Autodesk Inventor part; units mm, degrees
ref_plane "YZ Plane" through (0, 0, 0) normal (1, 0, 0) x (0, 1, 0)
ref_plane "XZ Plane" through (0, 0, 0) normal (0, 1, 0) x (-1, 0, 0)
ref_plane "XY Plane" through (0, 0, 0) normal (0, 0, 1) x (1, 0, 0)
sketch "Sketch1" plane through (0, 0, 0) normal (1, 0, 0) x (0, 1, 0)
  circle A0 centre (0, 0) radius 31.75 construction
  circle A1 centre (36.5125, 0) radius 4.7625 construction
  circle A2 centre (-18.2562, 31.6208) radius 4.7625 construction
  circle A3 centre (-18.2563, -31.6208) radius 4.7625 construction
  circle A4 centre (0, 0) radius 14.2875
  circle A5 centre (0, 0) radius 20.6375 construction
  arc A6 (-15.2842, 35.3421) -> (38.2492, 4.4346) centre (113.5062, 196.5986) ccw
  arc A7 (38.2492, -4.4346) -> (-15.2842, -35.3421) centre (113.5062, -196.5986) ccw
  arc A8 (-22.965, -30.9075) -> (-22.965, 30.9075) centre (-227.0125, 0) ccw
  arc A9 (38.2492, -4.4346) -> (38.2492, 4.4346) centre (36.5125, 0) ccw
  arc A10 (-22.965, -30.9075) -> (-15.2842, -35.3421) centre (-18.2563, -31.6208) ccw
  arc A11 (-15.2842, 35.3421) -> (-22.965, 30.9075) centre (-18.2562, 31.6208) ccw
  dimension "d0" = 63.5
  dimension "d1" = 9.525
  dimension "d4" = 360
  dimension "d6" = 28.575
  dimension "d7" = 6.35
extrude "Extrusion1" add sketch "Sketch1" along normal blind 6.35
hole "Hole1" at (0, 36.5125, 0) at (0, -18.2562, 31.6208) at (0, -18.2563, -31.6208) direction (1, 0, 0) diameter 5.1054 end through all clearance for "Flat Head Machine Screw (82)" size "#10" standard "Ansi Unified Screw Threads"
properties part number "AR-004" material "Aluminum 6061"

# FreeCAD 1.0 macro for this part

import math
import FreeCAD as App
import Part
import Sketcher
Q = App.Units.Quantity

doc = App.newDocument("Part")
body = doc.addObject("PartDesign::Body", "Body")

# Sketch on YZ plane
sketch1 = body.newObject("Sketcher::SketchObject", "Sketch")
sketch1.AttachmentSupport = (doc.getObject("YZ_Plane"), [""])
sketch1.MapMode = "FlatFace"
sketch1.addGeometry([
    Part.ArcOfCircle(Part.Circle(App.Vector(113.5062, 196.5986, 0), App.Vector(0, 0, 1), 206.374964), math.radians(-128.613241), math.radians(-111.386753)),  # 0
    Part.ArcOfCircle(Part.Circle(App.Vector(-18.2562, 31.6208, 0), App.Vector(0, 0, 1), 4.7625), math.radians(51.38754), math.radians(188.61381)),  # 1
    Part.ArcOfCircle(Part.Circle(App.Vector(-227.0125, 0, 0), App.Vector(0, 0, 1), 206.375037), math.radians(-8.613236), math.radians(8.613236)),  # 2
    Part.ArcOfCircle(Part.Circle(App.Vector(-18.2563, -31.6208, 0), App.Vector(0, 0, 1), 4.7625), math.radians(171.38601), math.radians(308.6134)),  # 3
    Part.ArcOfCircle(Part.Circle(App.Vector(113.5062, -196.5986, 0), App.Vector(0, 0, 1), 206.374947), math.radians(111.386753), math.radians(128.613241)),  # 4
    Part.ArcOfCircle(Part.Circle(App.Vector(36.5125, 0, 0), App.Vector(0, 0, 1), 4.762542), math.radians(-68.61345), math.radians(68.61345)),  # 5
    Part.Circle(App.Vector(0, 0, 0), App.Vector(0, 0, 1), 14.2875),  # 6
], False)
sketch1.addConstraint([
    Sketcher.Constraint("Tangent", 0, 1, 1, 1),
    Sketcher.Constraint("Tangent", 1, 2, 2, 2),
    Sketcher.Constraint("Tangent", 2, 1, 3, 1),
    Sketcher.Constraint("Tangent", 3, 2, 4, 2),
    Sketcher.Constraint("Tangent", 4, 1, 5, 1),
    Sketcher.Constraint("Tangent", 5, 2, 0, 2),
    Sketcher.Constraint("Coincident", 6, 3, -1, 1),
    Sketcher.Constraint("Equal", 0, 2),
    Sketcher.Constraint("Equal", 1, 3),
    Sketcher.Constraint("Equal", 2, 4),
    Sketcher.Constraint("Equal", 3, 5),
    Sketcher.Constraint("Symmetric", 1, 3, 3, 3, -1),
    Sketcher.Constraint("PointOnObject", 5, 3, -1),
    Sketcher.Constraint("Diameter", 6, Q("1.125 in")),
    Sketcher.Constraint("Radius", 1, Q("0.1875 in")),
    Sketcher.Constraint("Radius", 0, Q("8.125 in")),
    Sketcher.Constraint("DistanceX", 2, 1, 4, 1, Q("2.41 in")),
    Sketcher.Constraint("DistanceX", -1, 1, 0, 3, Q("4.468748 in")),
    Sketcher.Constraint("DistanceX", 1, 3, -1, 1, Q("0.718748 in")),
])
pad1 = body.newObject("PartDesign::Pad", "Pad")
pad1.Profile = sketch1
pad1.Length = Q("0.25 in")

# Sketch on YZ plane
sketch2 = body.newObject("Sketcher::SketchObject", "Sketch001")
sketch2.AttachmentSupport = (doc.getObject("YZ_Plane"), [""])
sketch2.MapMode = "FlatFace"
sketch2.addGeometry([
    Part.Circle(App.Vector(36.5125, 0, 0), App.Vector(0, 0, 1), 2.5527),
    Part.Circle(App.Vector(-18.2562, 31.6208, 0), App.Vector(0, 0, 1), 2.5527),
    Part.Circle(App.Vector(-18.2563, -31.6208, 0), App.Vector(0, 0, 1), 2.5527),
], False)
sketch2.addConstraint([
    Sketcher.Constraint("Equal", 0, 1),
    Sketcher.Constraint("Equal", 1, 2),
    Sketcher.Constraint("Symmetric", 1, 3, 2, 3, -1),
    Sketcher.Constraint("PointOnObject", 0, 3, -1),
    Sketcher.Constraint("Diameter", 0, Q("0.201 in")),
    Sketcher.Constraint("DistanceX", -1, 1, 0, 3, Q("1.4375 in")),
    Sketcher.Constraint("DistanceX", 1, 3, -1, 1, Q("0.718748 in")),
    Sketcher.Constraint("DistanceY", -1, 1, 1, 3, Q("31.6208 mm")),
])
doc.recompute()
hole = body.newObject("PartDesign::Hole", "Hole")
hole.Profile = sketch2
hole.ThreadType = "None"
hole.Diameter = Q("0.201 in")
hole.DepthType = "ThroughAll"
hole.Reversed = True

doc.recompute()
